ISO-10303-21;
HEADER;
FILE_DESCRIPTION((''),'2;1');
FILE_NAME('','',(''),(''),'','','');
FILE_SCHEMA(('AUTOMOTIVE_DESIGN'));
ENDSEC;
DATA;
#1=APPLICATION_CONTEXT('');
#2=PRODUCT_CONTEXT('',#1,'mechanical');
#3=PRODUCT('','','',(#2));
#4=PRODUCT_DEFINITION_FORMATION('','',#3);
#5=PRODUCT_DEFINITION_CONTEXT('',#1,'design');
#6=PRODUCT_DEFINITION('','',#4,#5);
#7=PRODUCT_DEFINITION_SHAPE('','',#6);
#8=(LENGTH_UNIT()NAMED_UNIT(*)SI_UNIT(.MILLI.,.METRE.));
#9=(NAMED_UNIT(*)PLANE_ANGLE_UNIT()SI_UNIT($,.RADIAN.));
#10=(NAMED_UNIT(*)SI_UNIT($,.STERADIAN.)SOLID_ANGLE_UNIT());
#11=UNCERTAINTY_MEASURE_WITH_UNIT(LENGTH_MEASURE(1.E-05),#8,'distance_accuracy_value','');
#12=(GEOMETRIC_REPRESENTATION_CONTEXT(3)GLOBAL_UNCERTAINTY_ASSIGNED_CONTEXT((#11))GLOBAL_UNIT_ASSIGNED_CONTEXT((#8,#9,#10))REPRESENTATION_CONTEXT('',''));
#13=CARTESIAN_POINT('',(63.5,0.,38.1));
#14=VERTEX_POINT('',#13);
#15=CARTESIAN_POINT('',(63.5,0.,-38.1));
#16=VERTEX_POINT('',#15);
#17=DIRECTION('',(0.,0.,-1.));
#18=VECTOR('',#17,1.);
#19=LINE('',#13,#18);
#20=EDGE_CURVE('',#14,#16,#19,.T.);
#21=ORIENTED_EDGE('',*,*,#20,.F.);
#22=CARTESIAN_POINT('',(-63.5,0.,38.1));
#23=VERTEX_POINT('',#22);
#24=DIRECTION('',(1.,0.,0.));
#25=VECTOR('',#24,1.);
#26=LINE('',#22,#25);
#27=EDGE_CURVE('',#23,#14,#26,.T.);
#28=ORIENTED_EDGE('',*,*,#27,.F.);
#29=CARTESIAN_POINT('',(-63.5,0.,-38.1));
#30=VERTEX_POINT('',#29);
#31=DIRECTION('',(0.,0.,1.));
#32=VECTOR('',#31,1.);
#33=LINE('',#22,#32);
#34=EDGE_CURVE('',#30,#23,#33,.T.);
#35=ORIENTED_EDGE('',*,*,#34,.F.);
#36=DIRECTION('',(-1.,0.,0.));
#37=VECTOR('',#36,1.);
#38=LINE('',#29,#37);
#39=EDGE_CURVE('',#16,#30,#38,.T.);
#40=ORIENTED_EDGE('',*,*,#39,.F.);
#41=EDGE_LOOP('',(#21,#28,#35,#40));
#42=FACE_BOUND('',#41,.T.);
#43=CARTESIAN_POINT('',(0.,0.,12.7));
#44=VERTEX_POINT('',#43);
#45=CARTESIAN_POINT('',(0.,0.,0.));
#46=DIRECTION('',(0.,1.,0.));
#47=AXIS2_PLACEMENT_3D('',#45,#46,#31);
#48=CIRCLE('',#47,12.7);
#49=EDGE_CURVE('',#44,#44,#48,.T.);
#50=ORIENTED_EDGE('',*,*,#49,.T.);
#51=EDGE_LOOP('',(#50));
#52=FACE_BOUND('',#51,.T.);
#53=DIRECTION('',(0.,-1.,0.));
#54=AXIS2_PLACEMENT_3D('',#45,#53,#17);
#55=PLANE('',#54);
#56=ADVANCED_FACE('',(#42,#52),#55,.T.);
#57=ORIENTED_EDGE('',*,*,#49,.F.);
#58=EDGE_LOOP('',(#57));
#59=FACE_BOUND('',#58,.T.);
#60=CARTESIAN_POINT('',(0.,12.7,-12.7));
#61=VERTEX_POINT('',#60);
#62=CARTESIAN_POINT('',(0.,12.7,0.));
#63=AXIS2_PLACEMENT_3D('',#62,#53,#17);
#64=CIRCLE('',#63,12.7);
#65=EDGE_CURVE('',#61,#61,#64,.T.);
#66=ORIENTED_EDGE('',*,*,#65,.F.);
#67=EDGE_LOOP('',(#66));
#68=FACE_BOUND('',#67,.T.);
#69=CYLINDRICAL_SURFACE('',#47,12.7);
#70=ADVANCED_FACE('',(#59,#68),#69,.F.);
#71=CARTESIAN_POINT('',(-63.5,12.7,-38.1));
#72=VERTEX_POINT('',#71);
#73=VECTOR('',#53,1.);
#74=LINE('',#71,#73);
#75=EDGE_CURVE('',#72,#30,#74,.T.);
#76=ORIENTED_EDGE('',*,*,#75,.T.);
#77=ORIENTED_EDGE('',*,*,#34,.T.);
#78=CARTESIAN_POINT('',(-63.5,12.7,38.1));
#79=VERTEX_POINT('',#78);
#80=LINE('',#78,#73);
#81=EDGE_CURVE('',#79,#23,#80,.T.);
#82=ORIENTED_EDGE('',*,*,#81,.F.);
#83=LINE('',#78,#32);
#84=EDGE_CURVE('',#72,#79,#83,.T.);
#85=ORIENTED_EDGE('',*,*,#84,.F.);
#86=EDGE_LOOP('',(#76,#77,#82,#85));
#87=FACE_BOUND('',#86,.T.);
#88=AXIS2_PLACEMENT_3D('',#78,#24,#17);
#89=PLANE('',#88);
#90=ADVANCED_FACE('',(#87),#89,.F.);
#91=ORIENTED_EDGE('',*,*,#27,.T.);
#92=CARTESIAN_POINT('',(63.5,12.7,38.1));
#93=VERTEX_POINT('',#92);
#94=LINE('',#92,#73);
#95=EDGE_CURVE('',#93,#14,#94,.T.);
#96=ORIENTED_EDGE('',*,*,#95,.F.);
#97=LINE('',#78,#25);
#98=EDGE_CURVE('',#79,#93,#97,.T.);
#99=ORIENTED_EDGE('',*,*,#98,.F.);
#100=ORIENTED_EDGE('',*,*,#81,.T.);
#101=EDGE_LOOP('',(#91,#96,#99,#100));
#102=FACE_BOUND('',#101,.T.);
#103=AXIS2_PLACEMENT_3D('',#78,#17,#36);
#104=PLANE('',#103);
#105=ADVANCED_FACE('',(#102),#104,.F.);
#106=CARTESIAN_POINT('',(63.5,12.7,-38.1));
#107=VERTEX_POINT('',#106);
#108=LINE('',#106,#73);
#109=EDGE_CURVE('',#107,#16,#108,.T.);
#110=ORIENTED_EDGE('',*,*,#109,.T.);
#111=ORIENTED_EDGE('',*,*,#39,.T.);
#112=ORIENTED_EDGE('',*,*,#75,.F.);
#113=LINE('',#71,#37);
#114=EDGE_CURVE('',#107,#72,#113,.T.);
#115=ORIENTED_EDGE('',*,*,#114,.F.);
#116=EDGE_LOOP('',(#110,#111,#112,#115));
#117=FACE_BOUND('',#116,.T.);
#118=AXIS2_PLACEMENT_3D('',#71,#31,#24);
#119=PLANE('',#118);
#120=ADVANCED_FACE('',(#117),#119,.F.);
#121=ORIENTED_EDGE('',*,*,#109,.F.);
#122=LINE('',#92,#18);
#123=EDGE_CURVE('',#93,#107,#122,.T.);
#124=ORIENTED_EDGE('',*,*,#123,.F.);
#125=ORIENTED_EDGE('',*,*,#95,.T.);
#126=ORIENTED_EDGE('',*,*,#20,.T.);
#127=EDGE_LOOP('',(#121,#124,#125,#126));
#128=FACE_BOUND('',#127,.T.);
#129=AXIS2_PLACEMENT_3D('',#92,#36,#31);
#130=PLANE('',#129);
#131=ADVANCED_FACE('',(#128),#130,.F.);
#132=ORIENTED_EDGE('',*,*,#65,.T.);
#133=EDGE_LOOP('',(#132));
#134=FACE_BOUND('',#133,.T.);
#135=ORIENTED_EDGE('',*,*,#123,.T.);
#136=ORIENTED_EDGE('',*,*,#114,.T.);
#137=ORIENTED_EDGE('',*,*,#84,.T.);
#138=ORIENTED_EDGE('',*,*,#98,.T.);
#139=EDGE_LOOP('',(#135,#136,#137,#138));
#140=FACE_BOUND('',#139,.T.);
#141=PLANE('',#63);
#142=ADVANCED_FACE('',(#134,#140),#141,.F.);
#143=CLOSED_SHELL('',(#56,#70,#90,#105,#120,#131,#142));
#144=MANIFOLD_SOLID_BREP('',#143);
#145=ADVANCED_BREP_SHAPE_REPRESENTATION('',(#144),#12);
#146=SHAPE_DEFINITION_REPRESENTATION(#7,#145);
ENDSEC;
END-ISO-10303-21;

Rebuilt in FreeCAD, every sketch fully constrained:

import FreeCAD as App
import Part
import Sketcher
Q = App.Units.Quantity


def add_polygon(sketch, points):
    """Adds a closed chain of lines whose ends are joined by coincident constraints."""
    first, n = sketch.GeometryCount, len(points)
    for a, b in zip(points, points[1:] + points[:1]):
        sketch.addGeometry(Part.LineSegment(App.Vector(*a, 0), App.Vector(*b, 0)), False)
    for i in range(n):
        sketch.addConstraint(Sketcher.Constraint("Coincident", first + i, 2, first + (i + 1) % n, 1))

doc = App.newDocument("Part")
params = doc.addObject("Spreadsheet::Sheet", "Params")
for row, (alias, value) in enumerate([
    ("sketch1_width", "5 in"),
    ("sketch1_height", "3 in"),
    ("pad1_length", "0.5 in"),
    ("sketch2_diameter", "1 in"),
], start=1):
    params.set(f"A{row}", alias)
    params.set(f"B{row}", "=" + value)
    params.setAlias(f"B{row}", alias)

body = doc.addObject("PartDesign::Body", "Body")

# Sketch on XZ plane
sketch1 = body.newObject("Sketcher::SketchObject", "Sketch")
sketch1.AttachmentSupport = (doc.getObject("XZ_Plane"), [""])
sketch1.MapMode = "FlatFace"
add_polygon(sketch1, [(-63.5, -38.1), (-63.5, 38.1), (63.5, 38.1), (63.5, -38.1)])  # lines 0-3
sketch1.addConstraint(Sketcher.Constraint("Vertical", 0))
sketch1.addConstraint(Sketcher.Constraint("Horizontal", 1))
sketch1.addConstraint(Sketcher.Constraint("Vertical", 2))
sketch1.addConstraint(Sketcher.Constraint("Horizontal", 3))
sketch1.addConstraint(Sketcher.Constraint("Symmetric", 0, 2, 2, 2, -1, 1))
sketch1.addConstraint(Sketcher.Constraint("DistanceX", 1, 1, 1, 2, Q("5 in")))
sketch1.addConstraint(Sketcher.Constraint("DistanceY", 0, 1, 0, 2, Q("3 in")))
sketch1.setExpression("Constraints[9]", "Params.sketch1_width")
sketch1.setExpression("Constraints[10]", "Params.sketch1_height")
pad1 = body.newObject("PartDesign::Pad", "Pad")
pad1.Profile = sketch1
pad1.setExpression("Length", "Params.pad1_length")
pad1.Reversed = True

# Sketch on XZ plane
sketch2 = body.newObject("Sketcher::SketchObject", "Sketch001")
sketch2.AttachmentSupport = (doc.getObject("XZ_Plane"), [""])
sketch2.MapMode = "FlatFace"
sketch2.AttachmentOffset = App.Placement(App.Vector(0, 0, -0.5 * 25.4), App.Rotation())
sketch2.addGeometry(Part.Circle(App.Vector(0, 0, 0), App.Vector(0, 0, 1), 12.7), False)
sketch2.addConstraint(Sketcher.Constraint("Coincident", 0, 3, -1, 1))
sketch2.addConstraint(Sketcher.Constraint("Diameter", 0, Q("1 in")))
sketch2.setExpression("Constraints[1]", "Params.sketch2_diameter")
pocket1 = body.newObject("PartDesign::Pocket", "Pocket")
pocket1.Profile = sketch2
pocket1.Type = "ThroughAll"
pocket1.Midplane = True

doc.recompute()
